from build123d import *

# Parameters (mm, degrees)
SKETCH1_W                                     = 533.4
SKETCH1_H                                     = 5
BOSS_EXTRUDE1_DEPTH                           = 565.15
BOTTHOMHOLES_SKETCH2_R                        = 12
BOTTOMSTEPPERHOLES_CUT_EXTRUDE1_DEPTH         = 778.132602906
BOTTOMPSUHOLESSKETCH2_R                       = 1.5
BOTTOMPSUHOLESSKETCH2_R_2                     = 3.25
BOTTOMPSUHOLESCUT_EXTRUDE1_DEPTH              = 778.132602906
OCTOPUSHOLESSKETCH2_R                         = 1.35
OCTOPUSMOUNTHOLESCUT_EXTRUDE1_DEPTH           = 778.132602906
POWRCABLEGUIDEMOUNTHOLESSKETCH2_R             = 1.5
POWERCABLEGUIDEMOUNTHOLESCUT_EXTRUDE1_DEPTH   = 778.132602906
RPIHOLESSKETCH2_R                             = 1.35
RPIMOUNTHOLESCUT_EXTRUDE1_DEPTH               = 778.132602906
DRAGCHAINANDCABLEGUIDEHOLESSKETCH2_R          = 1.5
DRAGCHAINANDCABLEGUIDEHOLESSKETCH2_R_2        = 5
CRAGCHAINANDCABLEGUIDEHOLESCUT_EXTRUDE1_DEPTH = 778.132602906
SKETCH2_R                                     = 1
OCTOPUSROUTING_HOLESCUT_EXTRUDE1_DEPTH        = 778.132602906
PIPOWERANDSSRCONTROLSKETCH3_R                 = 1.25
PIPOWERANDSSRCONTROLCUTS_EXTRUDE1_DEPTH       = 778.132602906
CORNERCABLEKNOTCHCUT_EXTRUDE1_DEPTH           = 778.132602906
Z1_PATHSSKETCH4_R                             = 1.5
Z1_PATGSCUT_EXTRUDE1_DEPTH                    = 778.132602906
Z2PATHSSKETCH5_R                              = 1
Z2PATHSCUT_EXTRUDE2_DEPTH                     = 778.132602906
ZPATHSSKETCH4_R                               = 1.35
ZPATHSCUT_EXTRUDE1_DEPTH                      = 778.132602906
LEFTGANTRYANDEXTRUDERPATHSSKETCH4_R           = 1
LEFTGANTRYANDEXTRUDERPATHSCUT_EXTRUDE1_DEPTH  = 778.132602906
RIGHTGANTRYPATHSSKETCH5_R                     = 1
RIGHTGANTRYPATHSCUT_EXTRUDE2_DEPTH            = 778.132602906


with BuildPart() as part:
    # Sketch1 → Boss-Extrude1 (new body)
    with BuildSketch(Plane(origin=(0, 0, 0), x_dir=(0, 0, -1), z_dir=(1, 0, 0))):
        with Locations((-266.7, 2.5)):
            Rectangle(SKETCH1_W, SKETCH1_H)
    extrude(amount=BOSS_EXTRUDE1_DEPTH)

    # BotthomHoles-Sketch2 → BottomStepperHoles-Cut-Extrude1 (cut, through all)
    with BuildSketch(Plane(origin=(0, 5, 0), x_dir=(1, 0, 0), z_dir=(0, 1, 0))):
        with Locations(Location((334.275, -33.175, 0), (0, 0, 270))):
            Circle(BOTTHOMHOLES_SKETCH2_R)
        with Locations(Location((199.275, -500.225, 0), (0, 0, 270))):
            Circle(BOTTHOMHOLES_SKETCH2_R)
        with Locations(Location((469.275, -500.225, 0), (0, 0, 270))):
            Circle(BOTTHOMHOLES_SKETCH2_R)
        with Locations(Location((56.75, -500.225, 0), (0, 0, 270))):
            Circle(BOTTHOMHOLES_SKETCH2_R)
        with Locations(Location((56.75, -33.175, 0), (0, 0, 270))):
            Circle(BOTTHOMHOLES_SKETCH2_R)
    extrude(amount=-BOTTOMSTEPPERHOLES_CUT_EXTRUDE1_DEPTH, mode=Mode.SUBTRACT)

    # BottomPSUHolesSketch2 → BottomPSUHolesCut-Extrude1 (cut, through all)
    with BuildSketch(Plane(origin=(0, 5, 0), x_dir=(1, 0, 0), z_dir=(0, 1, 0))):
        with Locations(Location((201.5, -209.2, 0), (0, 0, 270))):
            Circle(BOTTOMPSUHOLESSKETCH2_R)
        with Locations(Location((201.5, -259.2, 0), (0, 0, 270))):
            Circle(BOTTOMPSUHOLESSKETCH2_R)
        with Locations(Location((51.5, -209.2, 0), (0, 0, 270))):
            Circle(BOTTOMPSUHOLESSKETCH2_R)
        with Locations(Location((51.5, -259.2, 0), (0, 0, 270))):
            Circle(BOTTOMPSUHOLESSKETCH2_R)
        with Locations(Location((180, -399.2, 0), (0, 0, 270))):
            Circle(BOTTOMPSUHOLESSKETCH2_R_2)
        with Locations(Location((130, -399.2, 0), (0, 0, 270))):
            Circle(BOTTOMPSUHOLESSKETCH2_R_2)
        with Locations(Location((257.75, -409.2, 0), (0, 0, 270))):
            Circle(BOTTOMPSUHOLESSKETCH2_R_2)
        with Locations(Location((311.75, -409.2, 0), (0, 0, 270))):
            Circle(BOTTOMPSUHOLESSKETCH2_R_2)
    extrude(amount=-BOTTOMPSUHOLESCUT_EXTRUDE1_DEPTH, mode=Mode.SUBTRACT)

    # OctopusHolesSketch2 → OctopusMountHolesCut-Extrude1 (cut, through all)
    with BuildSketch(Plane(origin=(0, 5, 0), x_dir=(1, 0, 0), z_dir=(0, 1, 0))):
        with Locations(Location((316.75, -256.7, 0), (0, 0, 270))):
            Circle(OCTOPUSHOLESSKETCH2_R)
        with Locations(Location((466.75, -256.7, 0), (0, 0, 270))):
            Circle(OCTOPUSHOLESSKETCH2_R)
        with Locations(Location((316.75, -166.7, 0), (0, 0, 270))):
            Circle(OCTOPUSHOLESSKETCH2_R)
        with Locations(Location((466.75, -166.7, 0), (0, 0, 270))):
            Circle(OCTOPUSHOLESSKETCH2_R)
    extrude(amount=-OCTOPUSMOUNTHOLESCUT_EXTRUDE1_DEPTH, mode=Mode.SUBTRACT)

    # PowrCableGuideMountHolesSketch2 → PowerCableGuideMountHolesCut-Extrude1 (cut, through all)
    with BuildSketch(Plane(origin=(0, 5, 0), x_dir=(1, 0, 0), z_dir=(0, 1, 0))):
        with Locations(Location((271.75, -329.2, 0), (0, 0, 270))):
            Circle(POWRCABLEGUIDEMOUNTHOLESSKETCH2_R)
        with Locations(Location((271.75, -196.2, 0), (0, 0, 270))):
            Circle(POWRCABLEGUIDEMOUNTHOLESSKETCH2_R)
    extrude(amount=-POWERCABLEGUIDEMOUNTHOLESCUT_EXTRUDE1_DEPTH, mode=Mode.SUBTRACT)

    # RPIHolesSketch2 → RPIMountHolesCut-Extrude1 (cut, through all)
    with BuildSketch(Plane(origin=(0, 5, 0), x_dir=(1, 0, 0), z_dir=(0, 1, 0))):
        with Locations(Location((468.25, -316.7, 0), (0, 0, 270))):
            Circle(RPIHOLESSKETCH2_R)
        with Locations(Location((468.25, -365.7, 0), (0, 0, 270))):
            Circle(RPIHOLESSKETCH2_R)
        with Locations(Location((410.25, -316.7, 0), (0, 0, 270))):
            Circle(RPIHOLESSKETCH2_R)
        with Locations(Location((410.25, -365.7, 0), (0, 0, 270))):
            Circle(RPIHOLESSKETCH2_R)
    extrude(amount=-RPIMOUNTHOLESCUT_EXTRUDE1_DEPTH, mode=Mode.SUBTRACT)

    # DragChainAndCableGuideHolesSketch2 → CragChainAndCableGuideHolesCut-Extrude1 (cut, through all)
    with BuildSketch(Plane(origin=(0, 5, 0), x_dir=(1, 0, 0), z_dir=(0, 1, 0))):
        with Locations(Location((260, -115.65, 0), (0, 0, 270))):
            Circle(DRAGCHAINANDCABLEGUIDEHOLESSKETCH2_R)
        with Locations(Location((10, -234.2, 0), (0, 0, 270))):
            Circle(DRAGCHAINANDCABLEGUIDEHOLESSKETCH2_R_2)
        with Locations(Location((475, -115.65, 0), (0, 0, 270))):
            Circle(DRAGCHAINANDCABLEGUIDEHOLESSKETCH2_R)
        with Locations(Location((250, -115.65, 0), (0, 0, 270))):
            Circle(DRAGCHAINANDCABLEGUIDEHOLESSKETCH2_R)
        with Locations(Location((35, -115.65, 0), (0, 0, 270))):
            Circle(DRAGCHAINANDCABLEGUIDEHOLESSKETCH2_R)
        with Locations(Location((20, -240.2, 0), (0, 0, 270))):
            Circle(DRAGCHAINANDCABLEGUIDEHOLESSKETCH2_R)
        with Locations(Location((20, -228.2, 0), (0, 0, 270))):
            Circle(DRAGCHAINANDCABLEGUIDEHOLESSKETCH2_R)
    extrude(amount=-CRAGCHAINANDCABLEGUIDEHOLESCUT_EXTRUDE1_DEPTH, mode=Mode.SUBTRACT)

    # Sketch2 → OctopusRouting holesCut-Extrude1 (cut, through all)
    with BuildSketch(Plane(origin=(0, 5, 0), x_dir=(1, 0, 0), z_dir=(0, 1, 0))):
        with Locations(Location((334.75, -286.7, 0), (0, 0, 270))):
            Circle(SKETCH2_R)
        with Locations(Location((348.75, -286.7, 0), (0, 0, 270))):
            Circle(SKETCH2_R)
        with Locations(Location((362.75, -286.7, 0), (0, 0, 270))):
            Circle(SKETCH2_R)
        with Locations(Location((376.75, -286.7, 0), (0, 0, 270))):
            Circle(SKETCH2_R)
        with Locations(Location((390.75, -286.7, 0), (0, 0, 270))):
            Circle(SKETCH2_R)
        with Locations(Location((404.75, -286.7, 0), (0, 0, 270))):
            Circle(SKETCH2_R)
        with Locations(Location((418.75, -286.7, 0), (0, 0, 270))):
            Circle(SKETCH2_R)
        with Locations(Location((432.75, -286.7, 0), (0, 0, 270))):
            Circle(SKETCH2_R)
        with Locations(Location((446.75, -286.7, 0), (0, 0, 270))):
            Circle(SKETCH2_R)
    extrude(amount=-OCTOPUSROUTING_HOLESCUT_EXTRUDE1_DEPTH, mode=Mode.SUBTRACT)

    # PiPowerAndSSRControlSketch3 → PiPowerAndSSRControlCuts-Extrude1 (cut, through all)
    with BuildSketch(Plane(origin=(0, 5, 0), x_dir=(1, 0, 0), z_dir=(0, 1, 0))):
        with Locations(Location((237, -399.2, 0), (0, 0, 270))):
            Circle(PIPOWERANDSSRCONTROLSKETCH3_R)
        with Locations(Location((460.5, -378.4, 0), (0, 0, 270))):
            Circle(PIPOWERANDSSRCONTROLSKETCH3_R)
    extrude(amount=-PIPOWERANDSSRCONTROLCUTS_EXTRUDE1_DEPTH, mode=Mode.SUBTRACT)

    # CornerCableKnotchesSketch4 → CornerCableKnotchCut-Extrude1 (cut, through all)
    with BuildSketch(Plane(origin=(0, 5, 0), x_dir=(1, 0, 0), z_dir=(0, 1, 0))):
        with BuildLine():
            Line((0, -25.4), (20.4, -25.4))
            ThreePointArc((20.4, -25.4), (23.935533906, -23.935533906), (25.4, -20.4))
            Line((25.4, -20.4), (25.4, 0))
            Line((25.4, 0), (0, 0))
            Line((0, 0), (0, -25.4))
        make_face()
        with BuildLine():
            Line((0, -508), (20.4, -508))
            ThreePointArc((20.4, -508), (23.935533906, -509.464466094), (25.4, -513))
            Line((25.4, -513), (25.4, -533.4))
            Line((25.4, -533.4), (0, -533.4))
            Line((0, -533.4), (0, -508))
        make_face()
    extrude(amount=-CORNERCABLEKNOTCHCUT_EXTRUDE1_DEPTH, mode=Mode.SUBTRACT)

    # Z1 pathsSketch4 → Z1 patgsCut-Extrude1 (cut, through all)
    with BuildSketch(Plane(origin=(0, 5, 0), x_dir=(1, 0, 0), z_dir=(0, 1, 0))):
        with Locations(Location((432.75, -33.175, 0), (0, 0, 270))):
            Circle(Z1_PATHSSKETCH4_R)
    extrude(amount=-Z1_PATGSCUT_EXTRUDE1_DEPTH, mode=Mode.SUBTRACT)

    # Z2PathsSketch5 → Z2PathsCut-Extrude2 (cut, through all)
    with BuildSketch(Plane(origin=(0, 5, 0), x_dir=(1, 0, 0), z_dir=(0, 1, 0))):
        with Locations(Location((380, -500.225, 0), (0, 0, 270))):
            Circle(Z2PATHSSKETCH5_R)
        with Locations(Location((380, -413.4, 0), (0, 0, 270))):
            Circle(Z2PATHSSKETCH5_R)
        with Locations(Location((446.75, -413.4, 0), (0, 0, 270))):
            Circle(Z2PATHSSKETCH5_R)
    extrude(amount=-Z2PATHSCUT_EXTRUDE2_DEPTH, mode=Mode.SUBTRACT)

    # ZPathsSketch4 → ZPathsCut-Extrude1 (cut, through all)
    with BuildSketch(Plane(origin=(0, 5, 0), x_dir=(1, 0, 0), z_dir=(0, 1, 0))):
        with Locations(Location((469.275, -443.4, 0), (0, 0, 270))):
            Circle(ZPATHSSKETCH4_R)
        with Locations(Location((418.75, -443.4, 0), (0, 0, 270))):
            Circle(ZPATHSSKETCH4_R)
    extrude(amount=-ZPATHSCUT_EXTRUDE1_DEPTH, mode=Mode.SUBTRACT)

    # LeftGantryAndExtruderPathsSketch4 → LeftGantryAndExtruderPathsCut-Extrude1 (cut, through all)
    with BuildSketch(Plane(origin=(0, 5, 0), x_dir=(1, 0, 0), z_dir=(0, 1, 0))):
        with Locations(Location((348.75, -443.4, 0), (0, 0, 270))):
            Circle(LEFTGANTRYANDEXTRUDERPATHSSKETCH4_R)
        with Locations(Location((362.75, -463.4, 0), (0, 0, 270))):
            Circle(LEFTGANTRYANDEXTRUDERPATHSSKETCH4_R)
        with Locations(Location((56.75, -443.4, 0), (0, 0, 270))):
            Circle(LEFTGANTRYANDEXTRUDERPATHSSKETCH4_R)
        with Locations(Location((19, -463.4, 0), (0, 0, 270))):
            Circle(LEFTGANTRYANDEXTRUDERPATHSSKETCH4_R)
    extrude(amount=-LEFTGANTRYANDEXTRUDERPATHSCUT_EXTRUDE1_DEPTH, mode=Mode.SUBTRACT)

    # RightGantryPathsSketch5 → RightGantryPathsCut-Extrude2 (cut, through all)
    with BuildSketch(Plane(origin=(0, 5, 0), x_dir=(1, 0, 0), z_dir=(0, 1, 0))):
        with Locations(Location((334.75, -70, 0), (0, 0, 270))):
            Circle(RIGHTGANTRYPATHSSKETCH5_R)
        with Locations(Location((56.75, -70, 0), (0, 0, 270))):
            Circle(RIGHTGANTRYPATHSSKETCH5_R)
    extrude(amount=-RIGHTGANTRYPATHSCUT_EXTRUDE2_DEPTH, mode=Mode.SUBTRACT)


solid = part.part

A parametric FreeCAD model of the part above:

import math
import FreeCAD as App
import Part
import Sketcher
from FreeCAD import Vector
Q = App.Units.Quantity

doc = App.newDocument("Part")
body = doc.addObject("PartDesign::Body", "Body")

sketch1 = body.newObject("Sketcher::SketchObject", "Sketch")
sketch1.AttachmentSupport = (doc.getObject("YZ_Plane"), [""])
sketch1.MapMode = "FlatFace"
sketch1.addGeometry(Part.LineSegment(Vector(5, 533, 0), Vector(0, 533, 0)), False)
sketch1.addGeometry(Part.LineSegment(Vector(0, 533, 0), Vector(0, 0, 0)), False)
sketch1.addGeometry(Part.LineSegment(Vector(0, 0, 0), Vector(5, 0, 0)), False)
sketch1.addGeometry(Part.LineSegment(Vector(5, 0, 0), Vector(5, 533, 0)), False)
sketch1.addConstraint(Sketcher.Constraint("Coincident", 0, 2, 1, 1))
sketch1.addConstraint(Sketcher.Constraint("Coincident", 1, 2, 2, 1))
sketch1.addConstraint(Sketcher.Constraint("Coincident", 2, 2, 3, 1))
sketch1.addConstraint(Sketcher.Constraint("Coincident", 3, 2, 0, 1))
sketch1.addConstraint(Sketcher.Constraint("Horizontal", 0))
sketch1.addConstraint(Sketcher.Constraint("Vertical", 1))
sketch1.addConstraint(Sketcher.Constraint("Horizontal", 2))
sketch1.addConstraint(Sketcher.Constraint("Vertical", 3))
sketch1.addConstraint(Sketcher.Constraint("Coincident", 1, 2, -1, 1))
sketch1.addConstraint(Sketcher.Constraint("DistanceX", 0, 2, 0, 1, Q("5 mm")))
sketch1.addConstraint(Sketcher.Constraint("DistanceY", 1, 2, 1, 1, Q("533.4 mm")))
pad1 = body.newObject("PartDesign::Pad", "Pad")
pad1.Profile = sketch1
pad1.Length = 565.15

sketch2 = body.newObject("Sketcher::SketchObject", "Sketch001")
sketch2.AttachmentSupport = (doc.getObject("XZ_Plane"), [""])
sketch2.MapMode = "FlatFace"
sketch2.AttachmentOffset = App.Placement(Vector(0, 0, -5), App.Rotation())
sketch2.addGeometry(Part.Circle(Vector(334, 33, 0), Vector(0, 0, 1), 12), False)
sketch2.addGeometry(Part.Circle(Vector(199, 500, 0), Vector(0, 0, 1), 12), False)
sketch2.addGeometry(Part.Circle(Vector(469, 500, 0), Vector(0, 0, 1), 12), False)
sketch2.addGeometry(Part.Circle(Vector(57, 500, 0), Vector(0, 0, 1), 12), False)
sketch2.addGeometry(Part.Circle(Vector(57, 33, 0), Vector(0, 0, 1), 12), False)
sketch2.addConstraint(Sketcher.Constraint("Equal", 0, 1))
sketch2.addConstraint(Sketcher.Constraint("Equal", 1, 2))
sketch2.addConstraint(Sketcher.Constraint("Equal", 2, 3))
sketch2.addConstraint(Sketcher.Constraint("Equal", 3, 4))
sketch2.addConstraint(Sketcher.Constraint("Horizontal", 1, 3, 2, 3))
sketch2.addConstraint(Sketcher.Constraint("Horizontal", 2, 3, 3, 3))
sketch2.addConstraint(Sketcher.Constraint("Horizontal", 0, 3, 4, 3))
sketch2.addConstraint(Sketcher.Constraint("Vertical", 3, 3, 4, 3))
sketch2.addConstraint(Sketcher.Constraint("Diameter", 0, Q("24 mm")))
sketch2.addConstraint(Sketcher.Constraint("DistanceX", 1, 3, 0, 3, Q("135 mm")))
sketch2.addConstraint(Sketcher.Constraint("DistanceX", 1, 3, 2, 3, Q("270 mm")))
sketch2.addConstraint(Sketcher.Constraint("DistanceX", -1, 1, 3, 3, Q("56.75 mm")))
sketch2.addConstraint(Sketcher.Constraint("DistanceY", 0, 3, 1, 3, Q("467.05 mm")))
sketch2.addConstraint(Sketcher.Constraint("DistanceX", -1, 1, 0, 3, Q("334.275 mm")))
sketch2.addConstraint(Sketcher.Constraint("DistanceY", -1, 1, 0, 3, Q("33.175 mm")))
pocket1 = body.newObject("PartDesign::Pocket", "Pocket")
pocket1.Profile = sketch2
pocket1.Type = "ThroughAll"
pocket1.Reversed = True

sketch3 = body.newObject("Sketcher::SketchObject", "Sketch002")
sketch3.AttachmentSupport = (doc.getObject("XZ_Plane"), [""])
sketch3.MapMode = "FlatFace"
sketch3.AttachmentOffset = App.Placement(Vector(0, 0, -5), App.Rotation())
sketch3.addGeometry(Part.Circle(Vector(201.5, 209.2, 0), Vector(0, 0, 1), 1.5), False)
sketch3.addGeometry(Part.Circle(Vector(201.5, 259.2, 0), Vector(0, 0, 1), 1.5), False)
sketch3.addGeometry(Part.Circle(Vector(51.5, 209.2, 0), Vector(0, 0, 1), 1.5), False)
sketch3.addGeometry(Part.Circle(Vector(51.5, 259.2, 0), Vector(0, 0, 1), 1.5), False)
sketch3.addGeometry(Part.Circle(Vector(180, 399.2, 0), Vector(0, 0, 1), 3.2), False)
sketch3.addGeometry(Part.Circle(Vector(130, 399.2, 0), Vector(0, 0, 1), 3.2), False)
sketch3.addGeometry(Part.Circle(Vector(257.8, 409.2, 0), Vector(0, 0, 1), 3.2), False)
sketch3.addGeometry(Part.Circle(Vector(311.8, 409.2, 0), Vector(0, 0, 1), 3.2), False)
sketch3.addConstraint(Sketcher.Constraint("Equal", 0, 1))
sketch3.addConstraint(Sketcher.Constraint("Equal", 1, 2))
sketch3.addConstraint(Sketcher.Constraint("Equal", 2, 3))
sketch3.addConstraint(Sketcher.Constraint("Equal", 4, 5))
sketch3.addConstraint(Sketcher.Constraint("Equal", 5, 6))
sketch3.addConstraint(Sketcher.Constraint("Equal", 6, 7))
sketch3.addConstraint(Sketcher.Constraint("Horizontal", 0, 3, 2, 3))
sketch3.addConstraint(Sketcher.Constraint("Horizontal", 1, 3, 3, 3))
sketch3.addConstraint(Sketcher.Constraint("Horizontal", 4, 3, 5, 3))
sketch3.addConstraint(Sketcher.Constraint("Horizontal", 6, 3, 7, 3))
sketch3.addConstraint(Sketcher.Constraint("Vertical", 0, 3, 1, 3))
sketch3.addConstraint(Sketcher.Constraint("Vertical", 2, 3, 3, 3))
sketch3.addConstraint(Sketcher.Constraint("Diameter", 0, Q("3 mm")))
sketch3.addConstraint(Sketcher.Constraint("Diameter", 4, Q("6.5 mm")))
sketch3.addConstraint(Sketcher.Constraint("DistanceX", -1, 1, 4, 3, Q("180 mm")))
sketch3.addConstraint(Sketcher.Constraint("DistanceX", -1, 1, 5, 3, Q("130 mm")))
sketch3.addConstraint(Sketcher.Constraint("DistanceY", 0, 3, 1, 3, Q("50 mm")))
sketch3.addConstraint(Sketcher.Constraint("DistanceX", 2, 3, 0, 3, Q("150 mm")))
sketch3.addConstraint(Sketcher.Constraint("DistanceY", 1, 3, 4, 3, Q("140 mm")))
sketch3.addConstraint(Sketcher.Constraint("DistanceY", 4, 3, 6, 3, Q("10 mm")))
sketch3.addConstraint(Sketcher.Constraint("DistanceX", 6, 3, 7, 3, Q("54 mm")))
sketch3.addConstraint(Sketcher.Constraint("DistanceX", -1, 1, 0, 3, Q("201.5 mm")))
sketch3.addConstraint(Sketcher.Constraint("DistanceY", -1, 1, 0, 3, Q("209.2 mm")))
sketch3.addConstraint(Sketcher.Constraint("DistanceX", -1, 1, 6, 3, Q("257.75 mm")))
pocket2 = body.newObject("PartDesign::Pocket", "Pocket001")
pocket2.Profile = sketch3
pocket2.Type = "ThroughAll"
pocket2.Reversed = True

sketch4 = body.newObject("Sketcher::SketchObject", "Sketch003")
sketch4.AttachmentSupport = (doc.getObject("XZ_Plane"), [""])
sketch4.MapMode = "FlatFace"
sketch4.AttachmentOffset = App.Placement(Vector(0, 0, -5), App.Rotation())
sketch4.addGeometry(Part.Circle(Vector(316.8, 256.7, 0), Vector(0, 0, 1), 1.4), False)
sketch4.addGeometry(Part.Circle(Vector(466.8, 256.7, 0), Vector(0, 0, 1), 1.4), False)
sketch4.addGeometry(Part.Circle(Vector(316.8, 166.7, 0), Vector(0, 0, 1), 1.4), False)
sketch4.addGeometry(Part.Circle(Vector(466.8, 166.7, 0), Vector(0, 0, 1), 1.4), False)
sketch4.addConstraint(Sketcher.Constraint("Equal", 0, 1))
sketch4.addConstraint(Sketcher.Constraint("Equal", 1, 2))
sketch4.addConstraint(Sketcher.Constraint("Equal", 2, 3))
sketch4.addConstraint(Sketcher.Constraint("Horizontal", 0, 3, 1, 3))
sketch4.addConstraint(Sketcher.Constraint("Horizontal", 2, 3, 3, 3))
sketch4.addConstraint(Sketcher.Constraint("Vertical", 0, 3, 2, 3))
sketch4.addConstraint(Sketcher.Constraint("Vertical", 1, 3, 3, 3))
sketch4.addConstraint(Sketcher.Constraint("Diameter", 0, Q("2.7 mm")))
sketch4.addConstraint(Sketcher.Constraint("DistanceX", 0, 3, 1, 3, Q("150 mm")))
sketch4.addConstraint(Sketcher.Constraint("DistanceY", 2, 3, 0, 3, Q("90 mm")))
sketch4.addConstraint(Sketcher.Constraint("DistanceY", -1, 1, 0, 3, Q("256.7 mm")))
sketch4.addConstraint(Sketcher.Constraint("DistanceX", -1, 1, 0, 3, Q("316.75 mm")))
pocket3 = body.newObject("PartDesign::Pocket", "Pocket002")
pocket3.Profile = sketch4
pocket3.Type = "ThroughAll"
pocket3.Reversed = True

sketch5 = body.newObject("Sketcher::SketchObject", "Sketch004")
sketch5.AttachmentSupport = (doc.getObject("XZ_Plane"), [""])
sketch5.MapMode = "FlatFace"
sketch5.AttachmentOffset = App.Placement(Vector(0, 0, -5), App.Rotation())
sketch5.addGeometry(Part.Circle(Vector(271.8, 329.2, 0), Vector(0, 0, 1), 1.5), False)
sketch5.addGeometry(Part.Circle(Vector(271.8, 196.2, 0), Vector(0, 0, 1), 1.5), False)
sketch5.addConstraint(Sketcher.Constraint("Equal", 0, 1))
sketch5.addConstraint(Sketcher.Constraint("Vertical", 0, 3, 1, 3))
sketch5.addConstraint(Sketcher.Constraint("Diameter", 0, Q("3 mm")))
sketch5.addConstraint(Sketcher.Constraint("DistanceY", 1, 3, 0, 3, Q("133 mm")))
sketch5.addConstraint(Sketcher.Constraint("DistanceY", -1, 1, 0, 3, Q("329.2 mm")))
sketch5.addConstraint(Sketcher.Constraint("DistanceX", -1, 1, 0, 3, Q("271.75 mm")))
pocket4 = body.newObject("PartDesign::Pocket", "Pocket003")
pocket4.Profile = sketch5
pocket4.Type = "ThroughAll"
pocket4.Reversed = True

sketch6 = body.newObject("Sketcher::SketchObject", "Sketch005")
sketch6.AttachmentSupport = (doc.getObject("XZ_Plane"), [""])
sketch6.MapMode = "FlatFace"
sketch6.AttachmentOffset = App.Placement(Vector(0, 0, -5), App.Rotation())
sketch6.addGeometry(Part.Circle(Vector(468.2, 316.7, 0), Vector(0, 0, 1), 1.4), False)
sketch6.addGeometry(Part.Circle(Vector(468.2, 365.7, 0), Vector(0, 0, 1), 1.4), False)
sketch6.addGeometry(Part.Circle(Vector(410.2, 316.7, 0), Vector(0, 0, 1), 1.4), False)
sketch6.addGeometry(Part.Circle(Vector(410.2, 365.7, 0), Vector(0, 0, 1), 1.4), False)
sketch6.addConstraint(Sketcher.Constraint("Equal", 0, 1))
sketch6.addConstraint(Sketcher.Constraint("Equal", 1, 2))
sketch6.addConstraint(Sketcher.Constraint("Equal", 2, 3))
sketch6.addConstraint(Sketcher.Constraint("Horizontal", 0, 3, 2, 3))
sketch6.addConstraint(Sketcher.Constraint("Horizontal", 1, 3, 3, 3))
sketch6.addConstraint(Sketcher.Constraint("Vertical", 0, 3, 1, 3))
sketch6.addConstraint(Sketcher.Constraint("Vertical", 2, 3, 3, 3))
sketch6.addConstraint(Sketcher.Constraint("Diameter", 0, Q("2.7 mm")))
sketch6.addConstraint(Sketcher.Constraint("DistanceY", 0, 3, 1, 3, Q("49 mm")))
sketch6.addConstraint(Sketcher.Constraint("DistanceX", 2, 3, 0, 3, Q("58 mm")))
sketch6.addConstraint(Sketcher.Constraint("DistanceY", -1, 1, 0, 3, Q("316.7 mm")))
sketch6.addConstraint(Sketcher.Constraint("DistanceX", -1, 1, 0, 3, Q("468.25 mm")))
pocket5 = body.newObject("PartDesign::Pocket", "Pocket004")
pocket5.Profile = sketch6
pocket5.Type = "ThroughAll"
pocket5.Reversed = True

sketch7 = body.newObject("Sketcher::SketchObject", "Sketch006")
sketch7.AttachmentSupport = (doc.getObject("XZ_Plane"), [""])
sketch7.MapMode = "FlatFace"
sketch7.AttachmentOffset = App.Placement(Vector(0, 0, -5), App.Rotation())
sketch7.addGeometry(Part.Circle(Vector(260, 115.7, 0), Vector(0, 0, 1), 1.5), False)
sketch7.addGeometry(Part.Circle(Vector(10, 234.2, 0), Vector(0, 0, 1), 5), False)
sketch7.addGeometry(Part.Circle(Vector(475, 115.7, 0), Vector(0, 0, 1), 1.5), False)
sketch7.addGeometry(Part.Circle(Vector(250, 115.7, 0), Vector(0, 0, 1), 1.5), False)
sketch7.addGeometry(Part.Circle(Vector(35, 115.7, 0), Vector(0, 0, 1), 1.5), False)
sketch7.addGeometry(Part.Circle(Vector(20, 240.2, 0), Vector(0, 0, 1), 1.5), False)
sketch7.addGeometry(Part.Circle(Vector(20, 228.2, 0), Vector(0, 0, 1), 1.5), False)
sketch7.addConstraint(Sketcher.Constraint("Equal", 0, 2))
sketch7.addConstraint(Sketcher.Constraint("Equal", 2, 3))
sketch7.addConstraint(Sketcher.Constraint("Equal", 3, 4))
sketch7.addConstraint(Sketcher.Constraint("Equal", 4, 5))
sketch7.addConstraint(Sketcher.Constraint("Equal", 5, 6))
sketch7.addConstraint(Sketcher.Constraint("Horizontal", 0, 3, 2, 3))
sketch7.addConstraint(Sketcher.Constraint("Horizontal", 2, 3, 3, 3))
sketch7.addConstraint(Sketcher.Constraint("Horizontal", 3, 3, 4, 3))
sketch7.addConstraint(Sketcher.Constraint("Vertical", 5, 3, 6, 3))
sketch7.addConstraint(Sketcher.Constraint("Diameter", 0, Q("3 mm")))
sketch7.addConstraint(Sketcher.Constraint("Diameter", 1, Q("10 mm")))
sketch7.addConstraint(Sketcher.Constraint("DistanceX", -1, 1, 0, 3, Q("260 mm")))
sketch7.addConstraint(Sketcher.Constraint("DistanceX", -1, 1, 1, 3, Q("10 mm")))
sketch7.addConstraint(Sketcher.Constraint("DistanceX", -1, 1, 2, 3, Q("475 mm")))
sketch7.addConstraint(Sketcher.Constraint("DistanceX", -1, 1, 3, 3, Q("250 mm")))
sketch7.addConstraint(Sketcher.Constraint("DistanceX", -1, 1, 4, 3, Q("35 mm")))
sketch7.addConstraint(Sketcher.Constraint("DistanceX", -1, 1, 5, 3, Q("20 mm")))
sketch7.addConstraint(Sketcher.Constraint("DistanceY", 1, 3, 5, 3, Q("6 mm")))
sketch7.addConstraint(Sketcher.Constraint("DistanceY", 6, 3, 1, 3, Q("6 mm")))
sketch7.addConstraint(Sketcher.Constraint("DistanceY", -1, 1, 1, 3, Q("234.2 mm")))
sketch7.addConstraint(Sketcher.Constraint("DistanceY", -1, 1, 0, 3, Q("115.65 mm")))
pocket6 = body.newObject("PartDesign::Pocket", "Pocket005")
pocket6.Profile = sketch7
pocket6.Type = "ThroughAll"
pocket6.Reversed = True

sketch8 = body.newObject("Sketcher::SketchObject", "Sketch007")
sketch8.AttachmentSupport = (doc.getObject("XZ_Plane"), [""])
sketch8.MapMode = "FlatFace"
sketch8.AttachmentOffset = App.Placement(Vector(0, 0, -5), App.Rotation())
sketch8.addGeometry(Part.Circle(Vector(334.8, 286.7, 0), Vector(0, 0, 1), 1), False)
sketch8.addGeometry(Part.Circle(Vector(348.8, 286.7, 0), Vector(0, 0, 1), 1), False)
sketch8.addGeometry(Part.Circle(Vector(362.8, 286.7, 0), Vector(0, 0, 1), 1), False)
sketch8.addGeometry(Part.Circle(Vector(376.8, 286.7, 0), Vector(0, 0, 1), 1), False)
sketch8.addGeometry(Part.Circle(Vector(390.8, 286.7, 0), Vector(0, 0, 1), 1), False)
sketch8.addGeometry(Part.Circle(Vector(404.8, 286.7, 0), Vector(0, 0, 1), 1), False)
sketch8.addGeometry(Part.Circle(Vector(418.8, 286.7, 0), Vector(0, 0, 1), 1), False)
sketch8.addGeometry(Part.Circle(Vector(432.8, 286.7, 0), Vector(0, 0, 1), 1), False)
sketch8.addGeometry(Part.Circle(Vector(446.8, 286.7, 0), Vector(0, 0, 1), 1), False)
sketch8.addConstraint(Sketcher.Constraint("Equal", 0, 1))
sketch8.addConstraint(Sketcher.Constraint("Equal", 1, 2))
sketch8.addConstraint(Sketcher.Constraint("Equal", 2, 3))
sketch8.addConstraint(Sketcher.Constraint("Equal", 3, 4))
sketch8.addConstraint(Sketcher.Constraint("Equal", 4, 5))
sketch8.addConstraint(Sketcher.Constraint("Equal", 5, 6))
sketch8.addConstraint(Sketcher.Constraint("Equal", 6, 7))
sketch8.addConstraint(Sketcher.Constraint("Equal", 7, 8))
sketch8.addConstraint(Sketcher.Constraint("Horizontal", 0, 3, 1, 3))
sketch8.addConstraint(Sketcher.Constraint("Horizontal", 1, 3, 2, 3))
sketch8.addConstraint(Sketcher.Constraint("Horizontal", 2, 3, 3, 3))
sketch8.addConstraint(Sketcher.Constraint("Horizontal", 3, 3, 4, 3))
sketch8.addConstraint(Sketcher.Constraint("Horizontal", 4, 3, 5, 3))
sketch8.addConstraint(Sketcher.Constraint("Horizontal", 5, 3, 6, 3))
sketch8.addConstraint(Sketcher.Constraint("Horizontal", 6, 3, 7, 3))
sketch8.addConstraint(Sketcher.Constraint("Horizontal", 7, 3, 8, 3))
sketch8.addConstraint(Sketcher.Constraint("Diameter", 0, Q("2 mm")))
sketch8.addConstraint(Sketcher.Constraint("DistanceX", 0, 3, 1, 3, Q("14 mm")))
sketch8.addConstraint(Sketcher.Constraint("DistanceX", 1, 3, 2, 3, Q("14 mm")))
sketch8.addConstraint(Sketcher.Constraint("DistanceX", 2, 3, 3, 3, Q("14 mm")))
sketch8.addConstraint(Sketcher.Constraint("DistanceX", 3, 3, 4, 3, Q("14 mm")))
sketch8.addConstraint(Sketcher.Constraint("DistanceX", 4, 3, 5, 3, Q("14 mm")))
sketch8.addConstraint(Sketcher.Constraint("DistanceX", 5, 3, 6, 3, Q("14 mm")))
sketch8.addConstraint(Sketcher.Constraint("DistanceX", 6, 3, 7, 3, Q("14 mm")))
sketch8.addConstraint(Sketcher.Constraint("DistanceX", 7, 3, 8, 3, Q("14 mm")))
sketch8.addConstraint(Sketcher.Constraint("DistanceY", -1, 1, 0, 3, Q("286.7 mm")))
sketch8.addConstraint(Sketcher.Constraint("DistanceX", -1, 1, 0, 3, Q("334.75 mm")))
pocket7 = body.newObject("PartDesign::Pocket", "Pocket006")
pocket7.Profile = sketch8
pocket7.Type = "ThroughAll"
pocket7.Reversed = True

sketch9 = body.newObject("Sketcher::SketchObject", "Sketch008")
sketch9.AttachmentSupport = (doc.getObject("XZ_Plane"), [""])
sketch9.MapMode = "FlatFace"
sketch9.AttachmentOffset = App.Placement(Vector(0, 0, -5), App.Rotation())
sketch9.addGeometry(Part.Circle(Vector(237, 399.2, 0), Vector(0, 0, 1), 1.2), False)
sketch9.addGeometry(Part.Circle(Vector(460.5, 378.4, 0), Vector(0, 0, 1), 1.2), False)
sketch9.addConstraint(Sketcher.Constraint("Equal", 0, 1))
sketch9.addConstraint(Sketcher.Constraint("Diameter", 0, Q("2.5 mm")))
sketch9.addConstraint(Sketcher.Constraint("DistanceX", -1, 1, 0, 3, Q("237 mm")))
sketch9.addConstraint(Sketcher.Constraint("DistanceY", -1, 1, 0, 3, Q("399.2 mm")))
sketch9.addConstraint(Sketcher.Constraint("DistanceX", -1, 1, 1, 3, Q("460.5 mm")))
sketch9.addConstraint(Sketcher.Constraint("DistanceY", -1, 1, 1, 3, Q("378.4 mm")))
pocket8 = body.newObject("PartDesign::Pocket", "Pocket007")
pocket8.Profile = sketch9
pocket8.Type = "ThroughAll"
pocket8.Reversed = True

sketch10 = body.newObject("Sketcher::SketchObject", "Sketch009")
sketch10.AttachmentSupport = (doc.getObject("XZ_Plane"), [""])
sketch10.MapMode = "FlatFace"
sketch10.AttachmentOffset = App.Placement(Vector(0, 0, -5), App.Rotation())
sketch10.addGeometry(Part.LineSegment(Vector(0, 25, 0), Vector(20, 25, 0)), False)
sketch10.addGeometry(Part.ArcOfCircle(Part.Circle(Vector(20, 20, 0), Vector(0, 0, 1), 5), math.radians(0), math.radians(90)), False)
sketch10.addGeometry(Part.LineSegment(Vector(25, 20, 0), Vector(25, 0, 0)), False)
sketch10.addGeometry(Part.LineSegment(Vector(25, 0, 0), Vector(0, 0, 0)), False)
sketch10.addGeometry(Part.LineSegment(Vector(0, 0, 0), Vector(0, 25, 0)), False)
sketch10.addGeometry(Part.LineSegment(Vector(20, 508, 0), Vector(0, 508, 0)), False)
sketch10.addGeometry(Part.LineSegment(Vector(0, 508, 0), Vector(0, 533, 0)), False)
sketch10.addGeometry(Part.LineSegment(Vector(0, 533, 0), Vector(25, 533, 0)), False)
sketch10.addGeometry(Part.LineSegment(Vector(25, 533, 0), Vector(25, 513, 0)), False)
sketch10.addGeometry(Part.ArcOfCircle(Part.Circle(Vector(20, 513, 0), Vector(0, 0, 1), 5), math.radians(-90), math.radians(0)), False)
sketch10.addConstraint(Sketcher.Constraint("Tangent", 0, 2, 1, 2))
sketch10.addConstraint(Sketcher.Constraint("Tangent", 1, 1, 2, 1))
sketch10.addConstraint(Sketcher.Constraint("Coincident", 2, 2, 3, 1))
sketch10.addConstraint(Sketcher.Constraint("Coincident", 3, 2, 4, 1))
sketch10.addConstraint(Sketcher.Constraint("Coincident", 4, 2, 0, 1))
sketch10.addConstraint(Sketcher.Constraint("Coincident", 5, 2, 6, 1))
sketch10.addConstraint(Sketcher.Constraint("Coincident", 6, 2, 7, 1))
sketch10.addConstraint(Sketcher.Constraint("Coincident", 7, 2, 8, 1))
sketch10.addConstraint(Sketcher.Constraint("Tangent", 8, 2, 9, 2))
sketch10.addConstraint(Sketcher.Constraint("Tangent", 9, 1, 5, 1))
sketch10.addConstraint(Sketcher.Constraint("Horizontal", 0))
sketch10.addConstraint(Sketcher.Constraint("Vertical", 2))
sketch10.addConstraint(Sketcher.Constraint("Horizontal", 3))
sketch10.addConstraint(Sketcher.Constraint("Vertical", 4))
sketch10.addConstraint(Sketcher.Constraint("Horizontal", 5))
sketch10.addConstraint(Sketcher.Constraint("Vertical", 6))
sketch10.addConstraint(Sketcher.Constraint("Horizontal", 7))
sketch10.addConstraint(Sketcher.Constraint("Vertical", 8))
sketch10.addConstraint(Sketcher.Constraint("Coincident", 3, 2, -1, 1))
sketch10.addConstraint(Sketcher.Constraint("Equal", 1, 9))
sketch10.addConstraint(Sketcher.Constraint("PointOnObject", 5, 2, -2))
sketch10.addConstraint(Sketcher.Constraint("Vertical", 1, 3, 9, 3))
sketch10.addConstraint(Sketcher.Constraint("Equal", 5, 2))
sketch10.addConstraint(Sketcher.Constraint("Equal", 4, 6))
sketch10.addConstraint(Sketcher.Constraint("Radius", 1, Q("5 mm")))
sketch10.addConstraint(Sketcher.Constraint("DistanceX", 0, 1, 0, 2, Q("20.4 mm")))
sketch10.addConstraint(Sketcher.Constraint("DistanceY", -1, 1, 9, 3, Q("513 mm")))
pocket9 = body.newObject("PartDesign::Pocket", "Pocket008")
pocket9.Profile = sketch10
pocket9.Type = "ThroughAll"
pocket9.Reversed = True

sketch11 = body.newObject("Sketcher::SketchObject", "Sketch010")
sketch11.AttachmentSupport = (doc.getObject("XZ_Plane"), [""])
sketch11.MapMode = "FlatFace"
sketch11.AttachmentOffset = App.Placement(Vector(0, 0, -5), App.Rotation())
sketch11.addGeometry(Part.Circle(Vector(432.8, 33.2, 0), Vector(0, 0, 1), 1.5), False)
sketch11.addConstraint(Sketcher.Constraint("Diameter", 0, Q("3 mm")))
sketch11.addConstraint(Sketcher.Constraint("DistanceX", -1, 1, 0, 3, Q("432.75 mm")))
sketch11.addConstraint(Sketcher.Constraint("DistanceY", -1, 1, 0, 3, Q("33.175 mm")))
pocket10 = body.newObject("PartDesign::Pocket", "Pocket009")
pocket10.Profile = sketch11
pocket10.Type = "ThroughAll"
pocket10.Reversed = True

sketch12 = body.newObject("Sketcher::SketchObject", "Sketch011")
sketch12.AttachmentSupport = (doc.getObject("XZ_Plane"), [""])
sketch12.MapMode = "FlatFace"
sketch12.AttachmentOffset = App.Placement(Vector(0, 0, -5), App.Rotation())
sketch12.addGeometry(Part.Circle(Vector(380, 500.2, 0), Vector(0, 0, 1), 1), False)
sketch12.addGeometry(Part.Circle(Vector(380, 413.4, 0), Vector(0, 0, 1), 1), False)
sketch12.addGeometry(Part.Circle(Vector(446.8, 413.4, 0), Vector(0, 0, 1), 1), False)
sketch12.addConstraint(Sketcher.Constraint("Equal", 0, 1))
sketch12.addConstraint(Sketcher.Constraint("Equal", 1, 2))
sketch12.addConstraint(Sketcher.Constraint("Horizontal", 1, 3, 2, 3))
sketch12.addConstraint(Sketcher.Constraint("Vertical", 0, 3, 1, 3))
sketch12.addConstraint(Sketcher.Constraint("Diameter", 0, Q("2 mm")))
sketch12.addConstraint(Sketcher.Constraint("DistanceX", -1, 1, 0, 3, Q("380 mm")))
sketch12.addConstraint(Sketcher.Constraint("DistanceY", -1, 1, 1, 3, Q("413.4 mm")))
sketch12.addConstraint(Sketcher.Constraint("DistanceX", -1, 1, 2, 3, Q("446.75 mm")))
sketch12.addConstraint(Sketcher.Constraint("DistanceY", -1, 1, 0, 3, Q("500.225 mm")))
pocket11 = body.newObject("PartDesign::Pocket", "Pocket010")
pocket11.Profile = sketch12
pocket11.Type = "ThroughAll"
pocket11.Reversed = True

sketch13 = body.newObject("Sketcher::SketchObject", "Sketch012")
sketch13.AttachmentSupport = (doc.getObject("XZ_Plane"), [""])
sketch13.MapMode = "FlatFace"
sketch13.AttachmentOffset = App.Placement(Vector(0, 0, -5), App.Rotation())
sketch13.addGeometry(Part.Circle(Vector(469.3, 443.4, 0), Vector(0, 0, 1), 1.4), False)
sketch13.addGeometry(Part.Circle(Vector(418.8, 443.4, 0), Vector(0, 0, 1), 1.4), False)
sketch13.addConstraint(Sketcher.Constraint("Equal", 0, 1))
sketch13.addConstraint(Sketcher.Constraint("Horizontal", 0, 3, 1, 3))
sketch13.addConstraint(Sketcher.Constraint("Diameter", 0, Q("2.7 mm")))
sketch13.addConstraint(Sketcher.Constraint("DistanceY", -1, 1, 0, 3, Q("443.4 mm")))
sketch13.addConstraint(Sketcher.Constraint("DistanceX", -1, 1, 1, 3, Q("418.75 mm")))
sketch13.addConstraint(Sketcher.Constraint("DistanceX", -1, 1, 0, 3, Q("469.275 mm")))
pocket12 = body.newObject("PartDesign::Pocket", "Pocket011")
pocket12.Profile = sketch13
pocket12.Type = "ThroughAll"
pocket12.Reversed = True

sketch14 = body.newObject("Sketcher::SketchObject", "Sketch013")
sketch14.AttachmentSupport = (doc.getObject("XZ_Plane"), [""])
sketch14.MapMode = "FlatFace"
sketch14.AttachmentOffset = App.Placement(Vector(0, 0, -5), App.Rotation())
sketch14.addGeometry(Part.Circle(Vector(348.8, 443.4, 0), Vector(0, 0, 1), 1), False)
sketch14.addGeometry(Part.Circle(Vector(362.8, 463.4, 0), Vector(0, 0, 1), 1), False)
sketch14.addGeometry(Part.Circle(Vector(56.8, 443.4, 0), Vector(0, 0, 1), 1), False)
sketch14.addGeometry(Part.Circle(Vector(19, 463.4, 0), Vector(0, 0, 1), 1), False)
sketch14.addConstraint(Sketcher.Constraint("Equal", 0, 1))
sketch14.addConstraint(Sketcher.Constraint("Equal", 1, 2))
sketch14.addConstraint(Sketcher.Constraint("Equal", 2, 3))
sketch14.addConstraint(Sketcher.Constraint("Horizontal", 0, 3, 2, 3))
sketch14.addConstraint(Sketcher.Constraint("Horizontal", 1, 3, 3, 3))
sketch14.addConstraint(Sketcher.Constraint("Diameter", 0, Q("2 mm")))
sketch14.addConstraint(Sketcher.Constraint("DistanceX", -1, 1, 3, 3, Q("19 mm")))
sketch14.addConstraint(Sketcher.Constraint("DistanceX", 0, 3, 1, 3, Q("14 mm")))
sketch14.addConstraint(Sketcher.Constraint("DistanceY", 0, 3, 1, 3, Q("20 mm")))
sketch14.addConstraint(Sketcher.Constraint("DistanceX", 2, 3, 0, 3, Q("292 mm")))
sketch14.addConstraint(Sketcher.Constraint("DistanceY", -1, 1, 0, 3, Q("443.4 mm")))
sketch14.addConstraint(Sketcher.Constraint("DistanceX", -1, 1, 0, 3, Q("348.75 mm")))
pocket13 = body.newObject("PartDesign::Pocket", "Pocket012")
pocket13.Profile = sketch14
pocket13.Type = "ThroughAll"
pocket13.Reversed = True

sketch15 = body.newObject("Sketcher::SketchObject", "Sketch014")
sketch15.AttachmentSupport = (doc.getObject("XZ_Plane"), [""])
sketch15.MapMode = "FlatFace"
sketch15.AttachmentOffset = App.Placement(Vector(0, 0, -5), App.Rotation())
sketch15.addGeometry(Part.Circle(Vector(334.8, 70, 0), Vector(0, 0, 1), 1), False)
sketch15.addGeometry(Part.Circle(Vector(56.8, 70, 0), Vector(0, 0, 1), 1), False)
sketch15.addConstraint(Sketcher.Constraint("Equal", 0, 1))
sketch15.addConstraint(Sketcher.Constraint("Horizontal", 0, 3, 1, 3))
sketch15.addConstraint(Sketcher.Constraint("Diameter", 0, Q("2 mm")))
sketch15.addConstraint(Sketcher.Constraint("DistanceY", -1, 1, 0, 3, Q("70 mm")))
sketch15.addConstraint(Sketcher.Constraint("DistanceX", 1, 3, 0, 3, Q("278 mm")))
sketch15.addConstraint(Sketcher.Constraint("DistanceX", -1, 1, 0, 3, Q("334.75 mm")))
pocket14 = body.newObject("PartDesign::Pocket", "Pocket013")
pocket14.Profile = sketch15
pocket14.Type = "ThroughAll"
pocket14.Reversed = True

doc.recompute()
